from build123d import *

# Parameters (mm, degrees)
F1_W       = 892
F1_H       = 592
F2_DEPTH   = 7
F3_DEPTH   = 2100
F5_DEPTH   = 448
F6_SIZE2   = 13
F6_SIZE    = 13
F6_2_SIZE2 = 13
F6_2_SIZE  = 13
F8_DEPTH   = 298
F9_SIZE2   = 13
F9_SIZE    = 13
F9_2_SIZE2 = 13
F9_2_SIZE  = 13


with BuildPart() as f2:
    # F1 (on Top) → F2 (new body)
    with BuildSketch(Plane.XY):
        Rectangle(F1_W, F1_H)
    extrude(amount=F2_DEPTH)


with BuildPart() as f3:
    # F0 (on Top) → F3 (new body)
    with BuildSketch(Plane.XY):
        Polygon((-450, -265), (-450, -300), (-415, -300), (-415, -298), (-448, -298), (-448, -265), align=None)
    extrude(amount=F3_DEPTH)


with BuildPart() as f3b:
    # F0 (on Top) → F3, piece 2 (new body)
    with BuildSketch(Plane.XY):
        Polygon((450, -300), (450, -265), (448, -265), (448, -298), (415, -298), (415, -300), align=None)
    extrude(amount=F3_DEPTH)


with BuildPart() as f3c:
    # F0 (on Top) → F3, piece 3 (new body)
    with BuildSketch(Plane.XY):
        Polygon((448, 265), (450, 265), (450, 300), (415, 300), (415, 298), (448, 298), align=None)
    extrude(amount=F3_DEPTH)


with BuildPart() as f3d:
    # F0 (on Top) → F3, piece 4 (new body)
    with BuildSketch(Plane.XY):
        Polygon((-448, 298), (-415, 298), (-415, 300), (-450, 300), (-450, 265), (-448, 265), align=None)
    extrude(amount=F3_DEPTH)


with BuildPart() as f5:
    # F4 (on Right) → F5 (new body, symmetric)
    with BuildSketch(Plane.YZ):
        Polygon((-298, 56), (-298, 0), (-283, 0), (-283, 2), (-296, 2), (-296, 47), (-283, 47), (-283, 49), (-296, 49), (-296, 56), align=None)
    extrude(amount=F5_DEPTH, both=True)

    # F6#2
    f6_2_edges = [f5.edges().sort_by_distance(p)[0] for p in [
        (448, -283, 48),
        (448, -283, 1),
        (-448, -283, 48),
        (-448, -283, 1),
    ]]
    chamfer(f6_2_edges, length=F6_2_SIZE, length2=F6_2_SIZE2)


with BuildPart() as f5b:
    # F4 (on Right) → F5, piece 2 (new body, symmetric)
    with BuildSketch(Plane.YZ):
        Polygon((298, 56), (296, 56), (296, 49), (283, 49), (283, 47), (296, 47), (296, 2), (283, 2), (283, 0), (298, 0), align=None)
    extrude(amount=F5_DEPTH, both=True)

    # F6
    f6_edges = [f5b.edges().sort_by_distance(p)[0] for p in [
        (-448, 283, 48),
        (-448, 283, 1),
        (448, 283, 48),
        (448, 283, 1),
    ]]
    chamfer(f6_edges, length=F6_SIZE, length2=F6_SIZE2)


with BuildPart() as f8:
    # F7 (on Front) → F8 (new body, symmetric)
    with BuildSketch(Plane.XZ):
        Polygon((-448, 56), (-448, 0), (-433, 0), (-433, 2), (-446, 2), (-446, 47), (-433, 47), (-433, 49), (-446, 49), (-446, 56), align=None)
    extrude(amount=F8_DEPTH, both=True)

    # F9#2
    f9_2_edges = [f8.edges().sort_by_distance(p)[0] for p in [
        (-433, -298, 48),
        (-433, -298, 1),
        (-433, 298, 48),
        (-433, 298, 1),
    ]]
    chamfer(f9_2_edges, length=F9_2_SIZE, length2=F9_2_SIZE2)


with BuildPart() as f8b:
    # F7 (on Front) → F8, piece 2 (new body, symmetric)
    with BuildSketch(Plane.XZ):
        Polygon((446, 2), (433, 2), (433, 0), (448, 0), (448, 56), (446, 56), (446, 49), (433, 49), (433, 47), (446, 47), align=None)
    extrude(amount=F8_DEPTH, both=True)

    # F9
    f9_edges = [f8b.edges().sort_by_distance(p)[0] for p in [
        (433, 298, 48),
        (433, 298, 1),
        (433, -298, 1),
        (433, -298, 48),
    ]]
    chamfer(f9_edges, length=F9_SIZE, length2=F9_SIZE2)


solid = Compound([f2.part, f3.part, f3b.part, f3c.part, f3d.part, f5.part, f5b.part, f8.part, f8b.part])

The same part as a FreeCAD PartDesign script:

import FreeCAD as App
import Part
import Sketcher

V = App.Vector
Q = App.Units.Quantity


def edges_at(feature, points):
    """Names of the edges that pass closest to the given points."""
    edges = feature.Shape.Edges
    near = lambda p: min(range(len(edges)), key=lambda i: edges[i].distToShape(Part.Vertex(*p))[0])
    return sorted({f"Edge{near(p) + 1}" for p in points})


def add_polygon(sketch, points):
    """Adds a closed chain of lines whose ends are joined by coincident constraints."""
    first, n = sketch.GeometryCount, len(points)
    for a, b in zip(points, points[1:] + points[:1]):
        sketch.addGeometry(Part.LineSegment(App.Vector(*a, 0), App.Vector(*b, 0)), False)
    for i in range(n):
        sketch.addConstraint(Sketcher.Constraint("Coincident", first + i, 2, first + (i + 1) % n, 1))

doc = App.newDocument("Part")
body = doc.addObject("PartDesign::Body", "Body")

# Sketch on XY plane
sketch1 = doc.addObject("Sketcher::SketchObject", "Sketch")
body.addObject(sketch1)
sketch1.AttachmentSupport = (doc.XY_Plane, [""])
sketch1.MapMode = "FlatFace"
add_polygon(sketch1, [(-446, 296), (-446, -296), (446, -296), (446, 296)])  # lines 0-3
sketch1.addConstraint([
    Sketcher.Constraint("Vertical", 0),
    Sketcher.Constraint("Horizontal", 1),
    Sketcher.Constraint("Vertical", 2),
    Sketcher.Constraint("Horizontal", 3),
    Sketcher.Constraint("Symmetric", 0, 2, 2, 2, -1, 1),
    Sketcher.Constraint("DistanceX", 1, 1, 1, 2, Q("892 mm")),
    Sketcher.Constraint("DistanceY", 0, 2, 0, 1, Q("592 mm")),
])
pad1 = doc.addObject("PartDesign::Pad", "Pad")
body.addObject(pad1)
pad1.Profile = sketch1
pad1.Length = 7
body2 = doc.addObject("PartDesign::Body", "Body001")

# Sketch on XY plane
sketch2 = doc.addObject("Sketcher::SketchObject", "Sketch001")
body2.addObject(sketch2)
sketch2.AttachmentSupport = (doc.getObject("XY_Plane001"), [""])
sketch2.MapMode = "FlatFace"
add_polygon(sketch2, [(-450, -265), (-450, -300), (-415, -300), (-415, -298), (-448, -298), (-448, -265)])  # lines 0-5
sketch2.addConstraint([
    Sketcher.Constraint("Vertical", 0),
    Sketcher.Constraint("Horizontal", 1),
    Sketcher.Constraint("Vertical", 2),
    Sketcher.Constraint("Horizontal", 3),
    Sketcher.Constraint("Vertical", 4),
    Sketcher.Constraint("Horizontal", 5),
    Sketcher.Constraint("Equal", 1, 0),
    Sketcher.Constraint("Equal", 5, 2),
    Sketcher.Constraint("DistanceX", 1, 1, 1, 2, Q("35 mm")),
    Sketcher.Constraint("DistanceX", 3, 2, 3, 1, Q("33 mm")),
    Sketcher.Constraint("DistanceX", 0, 2, -1, 1, Q("450 mm")),
    Sketcher.Constraint("DistanceY", 0, 2, -1, 1, Q("300 mm")),
])
pad2 = doc.addObject("PartDesign::Pad", "Pad001")
body2.addObject(pad2)
pad2.Profile = sketch2
pad2.Length = 2100
body3 = doc.addObject("PartDesign::Body", "Body002")

# Sketch on XY plane
sketch3 = doc.addObject("Sketcher::SketchObject", "Sketch002")
body3.addObject(sketch3)
sketch3.AttachmentSupport = (doc.getObject("XY_Plane002"), [""])
sketch3.MapMode = "FlatFace"
add_polygon(sketch3, [(450, -300), (450, -265), (448, -265), (448, -298), (415, -298), (415, -300)])  # lines 0-5
sketch3.addConstraint([
    Sketcher.Constraint("Vertical", 0),
    Sketcher.Constraint("Horizontal", 1),
    Sketcher.Constraint("Vertical", 2),
    Sketcher.Constraint("Horizontal", 3),
    Sketcher.Constraint("Vertical", 4),
    Sketcher.Constraint("Horizontal", 5),
    Sketcher.Constraint("Equal", 5, 0),
    Sketcher.Constraint("Equal", 3, 2),
    Sketcher.Constraint("DistanceX", 1, 2, 1, 1, Q("2 mm")),
    Sketcher.Constraint("DistanceX", 3, 2, 3, 1, Q("33 mm")),
    Sketcher.Constraint("DistanceX", -1, 1, 0, 2, Q("450 mm")),
    Sketcher.Constraint("DistanceY", 0, 2, -1, 1, Q("265 mm")),
])
pad3 = doc.addObject("PartDesign::Pad", "Pad002")
body3.addObject(pad3)
pad3.Profile = sketch3
pad3.Length = 2100
body4 = doc.addObject("PartDesign::Body", "Body003")

# Sketch on XY plane
sketch4 = doc.addObject("Sketcher::SketchObject", "Sketch003")
body4.addObject(sketch4)
sketch4.AttachmentSupport = (doc.getObject("XY_Plane003"), [""])
sketch4.MapMode = "FlatFace"
add_polygon(sketch4, [(448, 265), (450, 265), (450, 300), (415, 300), (415, 298), (448, 298)])  # lines 0-5
sketch4.addConstraint([
    Sketcher.Constraint("Horizontal", 0),
    Sketcher.Constraint("Vertical", 1),
    Sketcher.Constraint("Horizontal", 2),
    Sketcher.Constraint("Vertical", 3),
    Sketcher.Constraint("Horizontal", 4),
    Sketcher.Constraint("Vertical", 5),
    Sketcher.Constraint("Equal", 2, 1),
    Sketcher.Constraint("Equal", 0, 3),
    Sketcher.Constraint("DistanceX", 0, 1, 0, 2, Q("2 mm")),
    Sketcher.Constraint("DistanceX", 2, 2, 2, 1, Q("35 mm")),
    Sketcher.Constraint("DistanceX", -1, 1, 0, 2, Q("450 mm")),
    Sketcher.Constraint("DistanceY", -1, 1, 0, 2, Q("265 mm")),
])
pad4 = doc.addObject("PartDesign::Pad", "Pad003")
body4.addObject(pad4)
pad4.Profile = sketch4
pad4.Length = 2100
body5 = doc.addObject("PartDesign::Body", "Body004")

# Sketch on XY plane
sketch5 = doc.addObject("Sketcher::SketchObject", "Sketch004")
body5.addObject(sketch5)
sketch5.AttachmentSupport = (doc.getObject("XY_Plane004"), [""])
sketch5.MapMode = "FlatFace"
add_polygon(sketch5, [(-448, 298), (-415, 298), (-415, 300), (-450, 300), (-450, 265), (-448, 265)])  # lines 0-5
sketch5.addConstraint([
    Sketcher.Constraint("Horizontal", 0),
    Sketcher.Constraint("Vertical", 1),
    Sketcher.Constraint("Horizontal", 2),
    Sketcher.Constraint("Vertical", 3),
    Sketcher.Constraint("Horizontal", 4),
    Sketcher.Constraint("Vertical", 5),
    Sketcher.Constraint("Equal", 4, 1),
    Sketcher.Constraint("Equal", 2, 3),
    Sketcher.Constraint("DistanceX", 0, 1, 0, 2, Q("33 mm")),
    Sketcher.Constraint("DistanceX", 2, 2, 2, 1, Q("35 mm")),
    Sketcher.Constraint("DistanceX", 0, 2, -1, 1, Q("415 mm")),
    Sketcher.Constraint("DistanceY", -1, 1, 0, 2, Q("298 mm")),
])
pad5 = doc.addObject("PartDesign::Pad", "Pad004")
body5.addObject(pad5)
pad5.Profile = sketch5
pad5.Length = 2100
body6 = doc.addObject("PartDesign::Body", "Body005")

# Sketch on YZ plane
sketch6 = doc.addObject("Sketcher::SketchObject", "Sketch005")
body6.addObject(sketch6)
sketch6.AttachmentSupport = (doc.getObject("YZ_Plane005"), [""])
sketch6.MapMode = "FlatFace"
add_polygon(sketch6, [(-298, 56), (-298, 0), (-283, 0), (-283, 2), (-296, 2), (-296, 47), (-283, 47), (-283, 49), (-296, 49), (-296, 56)])  # lines 0-9
sketch6.addConstraint([
    Sketcher.Constraint("Vertical", 0),
    Sketcher.Constraint("Horizontal", 1),
    Sketcher.Constraint("Vertical", 2),
    Sketcher.Constraint("Horizontal", 3),
    Sketcher.Constraint("Vertical", 4),
    Sketcher.Constraint("Horizontal", 5),
    Sketcher.Constraint("Vertical", 6),
    Sketcher.Constraint("Horizontal", 7),
    Sketcher.Constraint("Vertical", 8),
    Sketcher.Constraint("Horizontal", 9),
    Sketcher.Constraint("PointOnObject", 0, 2, -1),
    Sketcher.Constraint("Vertical", 2, 2, 5, 2),
    Sketcher.Constraint("Vertical", 4, 2, 7, 2),
    Sketcher.Constraint("Equal", 9, 2),
    Sketcher.Constraint("Equal", 2, 6),
    Sketcher.Constraint("DistanceX", 1, 1, 1, 2, Q("15 mm")),
    Sketcher.Constraint("DistanceX", 3, 2, 3, 1, Q("13 mm")),
    Sketcher.Constraint("DistanceY", 0, 2, 0, 1, Q("56 mm")),
    Sketcher.Constraint("DistanceY", 4, 1, 4, 2, Q("45 mm")),
    Sketcher.Constraint("DistanceX", 0, 2, -1, 1, Q("298 mm")),
])
pad6 = doc.addObject("PartDesign::Pad", "Pad005")
body6.addObject(pad6)
pad6.Profile = sketch6
pad6.Length = 896
pad6.Midplane = True
doc.recompute()

chamfer = doc.addObject("PartDesign::Chamfer", "Chamfer")
body6.addObject(chamfer)
chamfer.Base = (pad6, edges_at(pad6, [
    (448, -283, 48),
    (448, -283, 1),
    (-448, -283, 48),
    (-448, -283, 1),
]))
chamfer.ChamferType = "Two distances"
chamfer.Size = 13
chamfer.Size2 = 13
body7 = doc.addObject("PartDesign::Body", "Body006")

# Sketch on YZ plane
sketch7 = doc.addObject("Sketcher::SketchObject", "Sketch006")
body7.addObject(sketch7)
sketch7.AttachmentSupport = (doc.getObject("YZ_Plane006"), [""])
sketch7.MapMode = "FlatFace"
add_polygon(sketch7, [(298, 56), (296, 56), (296, 49), (283, 49), (283, 47), (296, 47), (296, 2), (283, 2), (283, 0), (298, 0)])  # lines 0-9
sketch7.addConstraint([
    Sketcher.Constraint("Horizontal", 0),
    Sketcher.Constraint("Vertical", 1),
    Sketcher.Constraint("Horizontal", 2),
    Sketcher.Constraint("Vertical", 3),
    Sketcher.Constraint("Horizontal", 4),
    Sketcher.Constraint("Vertical", 5),
    Sketcher.Constraint("Horizontal", 6),
    Sketcher.Constraint("Vertical", 7),
    Sketcher.Constraint("Horizontal", 8),
    Sketcher.Constraint("Vertical", 9),
    Sketcher.Constraint("PointOnObject", 7, 2, -1),
    Sketcher.Constraint("Vertical", 1, 2, 4, 2),
    Sketcher.Constraint("Vertical", 3, 2, 6, 2),
    Sketcher.Constraint("Equal", 0, 3),
    Sketcher.Constraint("Equal", 3, 7),
    Sketcher.Constraint("DistanceX", 0, 2, 0, 1, Q("2 mm")),
    Sketcher.Constraint("DistanceX", 2, 2, 2, 1, Q("13 mm")),
    Sketcher.Constraint("DistanceY", 1, 2, 1, 1, Q("7 mm")),
    Sketcher.Constraint("DistanceY", 5, 2, 5, 1, Q("45 mm")),
    Sketcher.Constraint("DistanceX", -1, 1, 0, 2, Q("296 mm")),
])
pad7 = doc.addObject("PartDesign::Pad", "Pad006")
body7.addObject(pad7)
pad7.Profile = sketch7
pad7.Length = 896
pad7.Midplane = True
doc.recompute()

chamfer2 = doc.addObject("PartDesign::Chamfer", "Chamfer001")
body7.addObject(chamfer2)
chamfer2.Base = (pad7, edges_at(pad7, [
    (-448, 283, 48),
    (-448, 283, 1),
    (448, 283, 48),
    (448, 283, 1),
]))
chamfer2.ChamferType = "Two distances"
chamfer2.Size = 13
chamfer2.Size2 = 13
body8 = doc.addObject("PartDesign::Body", "Body007")

# Sketch on XZ plane
sketch8 = doc.addObject("Sketcher::SketchObject", "Sketch007")
body8.addObject(sketch8)
sketch8.AttachmentSupport = (doc.getObject("XZ_Plane007"), [""])
sketch8.MapMode = "FlatFace"
add_polygon(sketch8, [(-448, 56), (-448, 0), (-433, 0), (-433, 2), (-446, 2), (-446, 47), (-433, 47), (-433, 49), (-446, 49), (-446, 56)])  # lines 0-9
sketch8.addConstraint([
    Sketcher.Constraint("Vertical", 0),
    Sketcher.Constraint("Horizontal", 1),
    Sketcher.Constraint("Vertical", 2),
    Sketcher.Constraint("Horizontal", 3),
    Sketcher.Constraint("Vertical", 4),
    Sketcher.Constraint("Horizontal", 5),
    Sketcher.Constraint("Vertical", 6),
    Sketcher.Constraint("Horizontal", 7),
    Sketcher.Constraint("Vertical", 8),
    Sketcher.Constraint("Horizontal", 9),
    Sketcher.Constraint("PointOnObject", 0, 2, -1),
    Sketcher.Constraint("Vertical", 2, 2, 5, 2),
    Sketcher.Constraint("Vertical", 4, 2, 7, 2),
    Sketcher.Constraint("Equal", 9, 2),
    Sketcher.Constraint("Equal", 2, 6),
    Sketcher.Constraint("DistanceX", 1, 1, 1, 2, Q("15 mm")),
    Sketcher.Constraint("DistanceX", 3, 2, 3, 1, Q("13 mm")),
    Sketcher.Constraint("DistanceY", 0, 2, 0, 1, Q("56 mm")),
    Sketcher.Constraint("DistanceY", 4, 1, 4, 2, Q("45 mm")),
    Sketcher.Constraint("DistanceX", 0, 2, -1, 1, Q("448 mm")),
])
pad8 = doc.addObject("PartDesign::Pad", "Pad007")
body8.addObject(pad8)
pad8.Profile = sketch8
pad8.Length = 596
pad8.Midplane = True
doc.recompute()

chamfer3 = doc.addObject("PartDesign::Chamfer", "Chamfer002")
body8.addObject(chamfer3)
chamfer3.Base = (pad8, edges_at(pad8, [
    (-433, -298, 48),
    (-433, -298, 1),
    (-433, 298, 48),
    (-433, 298, 1),
]))
chamfer3.ChamferType = "Two distances"
chamfer3.Size = 13
chamfer3.Size2 = 13
body9 = doc.addObject("PartDesign::Body", "Body008")

# Sketch on XZ plane
sketch9 = doc.addObject("Sketcher::SketchObject", "Sketch008")
body9.addObject(sketch9)
sketch9.AttachmentSupport = (doc.getObject("XZ_Plane008"), [""])
sketch9.MapMode = "FlatFace"
add_polygon(sketch9, [(446, 2), (433, 2), (433, 0), (448, 0), (448, 56), (446, 56), (446, 49), (433, 49), (433, 47), (446, 47)])  # lines 0-9
sketch9.addConstraint([
    Sketcher.Constraint("Horizontal", 0),
    Sketcher.Constraint("Vertical", 1),
    Sketcher.Constraint("Horizontal", 2),
    Sketcher.Constraint("Vertical", 3),
    Sketcher.Constraint("Horizontal", 4),
    Sketcher.Constraint("Vertical", 5),
    Sketcher.Constraint("Horizontal", 6),
    Sketcher.Constraint("Vertical", 7),
    Sketcher.Constraint("Horizontal", 8),
    Sketcher.Constraint("Vertical", 9),
    Sketcher.Constraint("PointOnObject", 1, 2, -1),
    Sketcher.Constraint("Vertical", 1, 2, 6, 2),
    Sketcher.Constraint("Vertical", 5, 2, 8, 2),
    Sketcher.Constraint("Equal", 4, 1),
    Sketcher.Constraint("Equal", 1, 7),
    Sketcher.Constraint("DistanceX", 0, 2, 0, 1, Q("13 mm")),
    Sketcher.Constraint("DistanceX", 2, 1, 2, 2, Q("15 mm")),
    Sketcher.Constraint("DistanceY", 3, 1, 3, 2, Q("56 mm")),
    Sketcher.Constraint("DistanceY", 5, 2, 5, 1, Q("7 mm")),
    Sketcher.Constraint("DistanceX", -1, 1, 0, 2, Q("433 mm")),
])
pad9 = doc.addObject("PartDesign::Pad", "Pad008")
body9.addObject(pad9)
pad9.Profile = sketch9
pad9.Length = 596
pad9.Midplane = True
doc.recompute()

chamfer4 = doc.addObject("PartDesign::Chamfer", "Chamfer003")
body9.addObject(chamfer4)
chamfer4.Base = (pad9, edges_at(pad9, [
    (433, 298, 48),
    (433, 298, 1),
    (433, -298, 1),
    (433, -298, 48),
]))
chamfer4.ChamferType = "Two distances"
chamfer4.Size = 13
chamfer4.Size2 = 13

doc.recompute()
